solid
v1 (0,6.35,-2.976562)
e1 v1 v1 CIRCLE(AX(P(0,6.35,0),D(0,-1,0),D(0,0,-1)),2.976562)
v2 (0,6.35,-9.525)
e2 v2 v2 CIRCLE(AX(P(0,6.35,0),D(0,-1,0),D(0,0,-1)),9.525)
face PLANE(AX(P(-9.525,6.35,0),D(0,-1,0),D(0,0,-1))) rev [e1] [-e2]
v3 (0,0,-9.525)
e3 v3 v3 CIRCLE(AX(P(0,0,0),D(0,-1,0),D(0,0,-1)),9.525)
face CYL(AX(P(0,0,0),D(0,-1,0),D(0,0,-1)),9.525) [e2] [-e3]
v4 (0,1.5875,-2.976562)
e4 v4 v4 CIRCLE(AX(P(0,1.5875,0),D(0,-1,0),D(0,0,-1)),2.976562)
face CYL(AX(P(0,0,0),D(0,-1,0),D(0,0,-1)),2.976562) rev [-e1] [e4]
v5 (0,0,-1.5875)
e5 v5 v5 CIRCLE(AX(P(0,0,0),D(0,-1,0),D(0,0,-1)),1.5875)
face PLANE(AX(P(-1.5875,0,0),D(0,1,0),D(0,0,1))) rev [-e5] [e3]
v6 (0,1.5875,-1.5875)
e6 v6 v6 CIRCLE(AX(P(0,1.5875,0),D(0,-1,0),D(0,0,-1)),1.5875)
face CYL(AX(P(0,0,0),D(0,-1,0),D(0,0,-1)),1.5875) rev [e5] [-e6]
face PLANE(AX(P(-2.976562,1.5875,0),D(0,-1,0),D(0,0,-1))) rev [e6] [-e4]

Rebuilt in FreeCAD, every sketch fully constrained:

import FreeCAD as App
import Part
import Sketcher

V = App.Vector
Q = App.Units.Quantity


def add_polygon(sketch, points):
    """Adds a closed chain of lines whose ends are joined by coincident constraints."""
    first, n = sketch.GeometryCount, len(points)
    for a, b in zip(points, points[1:] + points[:1]):
        sketch.addGeometry(Part.LineSegment(App.Vector(*a, 0), App.Vector(*b, 0)), False)
    for i in range(n):
        sketch.addConstraint(Sketcher.Constraint("Coincident", first + i, 2, first + (i + 1) % n, 1))

doc = App.newDocument("Part")
body = doc.addObject("PartDesign::Body", "Body")

# Sketch on XY plane
sketch1 = doc.addObject("Sketcher::SketchObject", "Sketch")
body.addObject(sketch1)
sketch1.AttachmentSupport = (doc.XY_Plane, [""])
sketch1.MapMode = "FlatFace"
add_polygon(sketch1, [(-9.525, 6.35), (-9.525, 0), (-1.5875, 0), (-1.5875, 1.5875), (-2.976562, 1.5875), (-2.976562, 6.35)])  # lines 0-5
sketch1.addConstraint(Sketcher.Constraint("Vertical", 0))
sketch1.addConstraint(Sketcher.Constraint("Horizontal", 1))
sketch1.addConstraint(Sketcher.Constraint("Vertical", 2))
sketch1.addConstraint(Sketcher.Constraint("Horizontal", 3))
sketch1.addConstraint(Sketcher.Constraint("Vertical", 4))
sketch1.addConstraint(Sketcher.Constraint("Horizontal", 5))
sketch1.addConstraint(Sketcher.Constraint("PointOnObject", 0, 2, -1))
sketch1.addConstraint(Sketcher.Constraint("DistanceY", 0, 2, 0, 1, Q("0.25 in")))
sketch1.addConstraint(Sketcher.Constraint("DistanceX", 1, 1, 1, 2, Q("0.3125 in")))
sketch1.addConstraint(Sketcher.Constraint("DistanceY", 2, 1, 2, 2, Q("0.0625 in")))
sketch1.addConstraint(Sketcher.Constraint("DistanceX", 0, 2, -1, 1, Q("0.375 in")))
sketch1.addConstraint(Sketcher.Constraint("DistanceX", 3, 2, 3, 1, 1.389063))
revolution = doc.addObject("PartDesign::Revolution", "Revolution")
body.addObject(revolution)
revolution.Profile = sketch1
revolution.ReferenceAxis = (sketch1, ["V_Axis"])
revolution.Angle = 360

doc.recompute()
